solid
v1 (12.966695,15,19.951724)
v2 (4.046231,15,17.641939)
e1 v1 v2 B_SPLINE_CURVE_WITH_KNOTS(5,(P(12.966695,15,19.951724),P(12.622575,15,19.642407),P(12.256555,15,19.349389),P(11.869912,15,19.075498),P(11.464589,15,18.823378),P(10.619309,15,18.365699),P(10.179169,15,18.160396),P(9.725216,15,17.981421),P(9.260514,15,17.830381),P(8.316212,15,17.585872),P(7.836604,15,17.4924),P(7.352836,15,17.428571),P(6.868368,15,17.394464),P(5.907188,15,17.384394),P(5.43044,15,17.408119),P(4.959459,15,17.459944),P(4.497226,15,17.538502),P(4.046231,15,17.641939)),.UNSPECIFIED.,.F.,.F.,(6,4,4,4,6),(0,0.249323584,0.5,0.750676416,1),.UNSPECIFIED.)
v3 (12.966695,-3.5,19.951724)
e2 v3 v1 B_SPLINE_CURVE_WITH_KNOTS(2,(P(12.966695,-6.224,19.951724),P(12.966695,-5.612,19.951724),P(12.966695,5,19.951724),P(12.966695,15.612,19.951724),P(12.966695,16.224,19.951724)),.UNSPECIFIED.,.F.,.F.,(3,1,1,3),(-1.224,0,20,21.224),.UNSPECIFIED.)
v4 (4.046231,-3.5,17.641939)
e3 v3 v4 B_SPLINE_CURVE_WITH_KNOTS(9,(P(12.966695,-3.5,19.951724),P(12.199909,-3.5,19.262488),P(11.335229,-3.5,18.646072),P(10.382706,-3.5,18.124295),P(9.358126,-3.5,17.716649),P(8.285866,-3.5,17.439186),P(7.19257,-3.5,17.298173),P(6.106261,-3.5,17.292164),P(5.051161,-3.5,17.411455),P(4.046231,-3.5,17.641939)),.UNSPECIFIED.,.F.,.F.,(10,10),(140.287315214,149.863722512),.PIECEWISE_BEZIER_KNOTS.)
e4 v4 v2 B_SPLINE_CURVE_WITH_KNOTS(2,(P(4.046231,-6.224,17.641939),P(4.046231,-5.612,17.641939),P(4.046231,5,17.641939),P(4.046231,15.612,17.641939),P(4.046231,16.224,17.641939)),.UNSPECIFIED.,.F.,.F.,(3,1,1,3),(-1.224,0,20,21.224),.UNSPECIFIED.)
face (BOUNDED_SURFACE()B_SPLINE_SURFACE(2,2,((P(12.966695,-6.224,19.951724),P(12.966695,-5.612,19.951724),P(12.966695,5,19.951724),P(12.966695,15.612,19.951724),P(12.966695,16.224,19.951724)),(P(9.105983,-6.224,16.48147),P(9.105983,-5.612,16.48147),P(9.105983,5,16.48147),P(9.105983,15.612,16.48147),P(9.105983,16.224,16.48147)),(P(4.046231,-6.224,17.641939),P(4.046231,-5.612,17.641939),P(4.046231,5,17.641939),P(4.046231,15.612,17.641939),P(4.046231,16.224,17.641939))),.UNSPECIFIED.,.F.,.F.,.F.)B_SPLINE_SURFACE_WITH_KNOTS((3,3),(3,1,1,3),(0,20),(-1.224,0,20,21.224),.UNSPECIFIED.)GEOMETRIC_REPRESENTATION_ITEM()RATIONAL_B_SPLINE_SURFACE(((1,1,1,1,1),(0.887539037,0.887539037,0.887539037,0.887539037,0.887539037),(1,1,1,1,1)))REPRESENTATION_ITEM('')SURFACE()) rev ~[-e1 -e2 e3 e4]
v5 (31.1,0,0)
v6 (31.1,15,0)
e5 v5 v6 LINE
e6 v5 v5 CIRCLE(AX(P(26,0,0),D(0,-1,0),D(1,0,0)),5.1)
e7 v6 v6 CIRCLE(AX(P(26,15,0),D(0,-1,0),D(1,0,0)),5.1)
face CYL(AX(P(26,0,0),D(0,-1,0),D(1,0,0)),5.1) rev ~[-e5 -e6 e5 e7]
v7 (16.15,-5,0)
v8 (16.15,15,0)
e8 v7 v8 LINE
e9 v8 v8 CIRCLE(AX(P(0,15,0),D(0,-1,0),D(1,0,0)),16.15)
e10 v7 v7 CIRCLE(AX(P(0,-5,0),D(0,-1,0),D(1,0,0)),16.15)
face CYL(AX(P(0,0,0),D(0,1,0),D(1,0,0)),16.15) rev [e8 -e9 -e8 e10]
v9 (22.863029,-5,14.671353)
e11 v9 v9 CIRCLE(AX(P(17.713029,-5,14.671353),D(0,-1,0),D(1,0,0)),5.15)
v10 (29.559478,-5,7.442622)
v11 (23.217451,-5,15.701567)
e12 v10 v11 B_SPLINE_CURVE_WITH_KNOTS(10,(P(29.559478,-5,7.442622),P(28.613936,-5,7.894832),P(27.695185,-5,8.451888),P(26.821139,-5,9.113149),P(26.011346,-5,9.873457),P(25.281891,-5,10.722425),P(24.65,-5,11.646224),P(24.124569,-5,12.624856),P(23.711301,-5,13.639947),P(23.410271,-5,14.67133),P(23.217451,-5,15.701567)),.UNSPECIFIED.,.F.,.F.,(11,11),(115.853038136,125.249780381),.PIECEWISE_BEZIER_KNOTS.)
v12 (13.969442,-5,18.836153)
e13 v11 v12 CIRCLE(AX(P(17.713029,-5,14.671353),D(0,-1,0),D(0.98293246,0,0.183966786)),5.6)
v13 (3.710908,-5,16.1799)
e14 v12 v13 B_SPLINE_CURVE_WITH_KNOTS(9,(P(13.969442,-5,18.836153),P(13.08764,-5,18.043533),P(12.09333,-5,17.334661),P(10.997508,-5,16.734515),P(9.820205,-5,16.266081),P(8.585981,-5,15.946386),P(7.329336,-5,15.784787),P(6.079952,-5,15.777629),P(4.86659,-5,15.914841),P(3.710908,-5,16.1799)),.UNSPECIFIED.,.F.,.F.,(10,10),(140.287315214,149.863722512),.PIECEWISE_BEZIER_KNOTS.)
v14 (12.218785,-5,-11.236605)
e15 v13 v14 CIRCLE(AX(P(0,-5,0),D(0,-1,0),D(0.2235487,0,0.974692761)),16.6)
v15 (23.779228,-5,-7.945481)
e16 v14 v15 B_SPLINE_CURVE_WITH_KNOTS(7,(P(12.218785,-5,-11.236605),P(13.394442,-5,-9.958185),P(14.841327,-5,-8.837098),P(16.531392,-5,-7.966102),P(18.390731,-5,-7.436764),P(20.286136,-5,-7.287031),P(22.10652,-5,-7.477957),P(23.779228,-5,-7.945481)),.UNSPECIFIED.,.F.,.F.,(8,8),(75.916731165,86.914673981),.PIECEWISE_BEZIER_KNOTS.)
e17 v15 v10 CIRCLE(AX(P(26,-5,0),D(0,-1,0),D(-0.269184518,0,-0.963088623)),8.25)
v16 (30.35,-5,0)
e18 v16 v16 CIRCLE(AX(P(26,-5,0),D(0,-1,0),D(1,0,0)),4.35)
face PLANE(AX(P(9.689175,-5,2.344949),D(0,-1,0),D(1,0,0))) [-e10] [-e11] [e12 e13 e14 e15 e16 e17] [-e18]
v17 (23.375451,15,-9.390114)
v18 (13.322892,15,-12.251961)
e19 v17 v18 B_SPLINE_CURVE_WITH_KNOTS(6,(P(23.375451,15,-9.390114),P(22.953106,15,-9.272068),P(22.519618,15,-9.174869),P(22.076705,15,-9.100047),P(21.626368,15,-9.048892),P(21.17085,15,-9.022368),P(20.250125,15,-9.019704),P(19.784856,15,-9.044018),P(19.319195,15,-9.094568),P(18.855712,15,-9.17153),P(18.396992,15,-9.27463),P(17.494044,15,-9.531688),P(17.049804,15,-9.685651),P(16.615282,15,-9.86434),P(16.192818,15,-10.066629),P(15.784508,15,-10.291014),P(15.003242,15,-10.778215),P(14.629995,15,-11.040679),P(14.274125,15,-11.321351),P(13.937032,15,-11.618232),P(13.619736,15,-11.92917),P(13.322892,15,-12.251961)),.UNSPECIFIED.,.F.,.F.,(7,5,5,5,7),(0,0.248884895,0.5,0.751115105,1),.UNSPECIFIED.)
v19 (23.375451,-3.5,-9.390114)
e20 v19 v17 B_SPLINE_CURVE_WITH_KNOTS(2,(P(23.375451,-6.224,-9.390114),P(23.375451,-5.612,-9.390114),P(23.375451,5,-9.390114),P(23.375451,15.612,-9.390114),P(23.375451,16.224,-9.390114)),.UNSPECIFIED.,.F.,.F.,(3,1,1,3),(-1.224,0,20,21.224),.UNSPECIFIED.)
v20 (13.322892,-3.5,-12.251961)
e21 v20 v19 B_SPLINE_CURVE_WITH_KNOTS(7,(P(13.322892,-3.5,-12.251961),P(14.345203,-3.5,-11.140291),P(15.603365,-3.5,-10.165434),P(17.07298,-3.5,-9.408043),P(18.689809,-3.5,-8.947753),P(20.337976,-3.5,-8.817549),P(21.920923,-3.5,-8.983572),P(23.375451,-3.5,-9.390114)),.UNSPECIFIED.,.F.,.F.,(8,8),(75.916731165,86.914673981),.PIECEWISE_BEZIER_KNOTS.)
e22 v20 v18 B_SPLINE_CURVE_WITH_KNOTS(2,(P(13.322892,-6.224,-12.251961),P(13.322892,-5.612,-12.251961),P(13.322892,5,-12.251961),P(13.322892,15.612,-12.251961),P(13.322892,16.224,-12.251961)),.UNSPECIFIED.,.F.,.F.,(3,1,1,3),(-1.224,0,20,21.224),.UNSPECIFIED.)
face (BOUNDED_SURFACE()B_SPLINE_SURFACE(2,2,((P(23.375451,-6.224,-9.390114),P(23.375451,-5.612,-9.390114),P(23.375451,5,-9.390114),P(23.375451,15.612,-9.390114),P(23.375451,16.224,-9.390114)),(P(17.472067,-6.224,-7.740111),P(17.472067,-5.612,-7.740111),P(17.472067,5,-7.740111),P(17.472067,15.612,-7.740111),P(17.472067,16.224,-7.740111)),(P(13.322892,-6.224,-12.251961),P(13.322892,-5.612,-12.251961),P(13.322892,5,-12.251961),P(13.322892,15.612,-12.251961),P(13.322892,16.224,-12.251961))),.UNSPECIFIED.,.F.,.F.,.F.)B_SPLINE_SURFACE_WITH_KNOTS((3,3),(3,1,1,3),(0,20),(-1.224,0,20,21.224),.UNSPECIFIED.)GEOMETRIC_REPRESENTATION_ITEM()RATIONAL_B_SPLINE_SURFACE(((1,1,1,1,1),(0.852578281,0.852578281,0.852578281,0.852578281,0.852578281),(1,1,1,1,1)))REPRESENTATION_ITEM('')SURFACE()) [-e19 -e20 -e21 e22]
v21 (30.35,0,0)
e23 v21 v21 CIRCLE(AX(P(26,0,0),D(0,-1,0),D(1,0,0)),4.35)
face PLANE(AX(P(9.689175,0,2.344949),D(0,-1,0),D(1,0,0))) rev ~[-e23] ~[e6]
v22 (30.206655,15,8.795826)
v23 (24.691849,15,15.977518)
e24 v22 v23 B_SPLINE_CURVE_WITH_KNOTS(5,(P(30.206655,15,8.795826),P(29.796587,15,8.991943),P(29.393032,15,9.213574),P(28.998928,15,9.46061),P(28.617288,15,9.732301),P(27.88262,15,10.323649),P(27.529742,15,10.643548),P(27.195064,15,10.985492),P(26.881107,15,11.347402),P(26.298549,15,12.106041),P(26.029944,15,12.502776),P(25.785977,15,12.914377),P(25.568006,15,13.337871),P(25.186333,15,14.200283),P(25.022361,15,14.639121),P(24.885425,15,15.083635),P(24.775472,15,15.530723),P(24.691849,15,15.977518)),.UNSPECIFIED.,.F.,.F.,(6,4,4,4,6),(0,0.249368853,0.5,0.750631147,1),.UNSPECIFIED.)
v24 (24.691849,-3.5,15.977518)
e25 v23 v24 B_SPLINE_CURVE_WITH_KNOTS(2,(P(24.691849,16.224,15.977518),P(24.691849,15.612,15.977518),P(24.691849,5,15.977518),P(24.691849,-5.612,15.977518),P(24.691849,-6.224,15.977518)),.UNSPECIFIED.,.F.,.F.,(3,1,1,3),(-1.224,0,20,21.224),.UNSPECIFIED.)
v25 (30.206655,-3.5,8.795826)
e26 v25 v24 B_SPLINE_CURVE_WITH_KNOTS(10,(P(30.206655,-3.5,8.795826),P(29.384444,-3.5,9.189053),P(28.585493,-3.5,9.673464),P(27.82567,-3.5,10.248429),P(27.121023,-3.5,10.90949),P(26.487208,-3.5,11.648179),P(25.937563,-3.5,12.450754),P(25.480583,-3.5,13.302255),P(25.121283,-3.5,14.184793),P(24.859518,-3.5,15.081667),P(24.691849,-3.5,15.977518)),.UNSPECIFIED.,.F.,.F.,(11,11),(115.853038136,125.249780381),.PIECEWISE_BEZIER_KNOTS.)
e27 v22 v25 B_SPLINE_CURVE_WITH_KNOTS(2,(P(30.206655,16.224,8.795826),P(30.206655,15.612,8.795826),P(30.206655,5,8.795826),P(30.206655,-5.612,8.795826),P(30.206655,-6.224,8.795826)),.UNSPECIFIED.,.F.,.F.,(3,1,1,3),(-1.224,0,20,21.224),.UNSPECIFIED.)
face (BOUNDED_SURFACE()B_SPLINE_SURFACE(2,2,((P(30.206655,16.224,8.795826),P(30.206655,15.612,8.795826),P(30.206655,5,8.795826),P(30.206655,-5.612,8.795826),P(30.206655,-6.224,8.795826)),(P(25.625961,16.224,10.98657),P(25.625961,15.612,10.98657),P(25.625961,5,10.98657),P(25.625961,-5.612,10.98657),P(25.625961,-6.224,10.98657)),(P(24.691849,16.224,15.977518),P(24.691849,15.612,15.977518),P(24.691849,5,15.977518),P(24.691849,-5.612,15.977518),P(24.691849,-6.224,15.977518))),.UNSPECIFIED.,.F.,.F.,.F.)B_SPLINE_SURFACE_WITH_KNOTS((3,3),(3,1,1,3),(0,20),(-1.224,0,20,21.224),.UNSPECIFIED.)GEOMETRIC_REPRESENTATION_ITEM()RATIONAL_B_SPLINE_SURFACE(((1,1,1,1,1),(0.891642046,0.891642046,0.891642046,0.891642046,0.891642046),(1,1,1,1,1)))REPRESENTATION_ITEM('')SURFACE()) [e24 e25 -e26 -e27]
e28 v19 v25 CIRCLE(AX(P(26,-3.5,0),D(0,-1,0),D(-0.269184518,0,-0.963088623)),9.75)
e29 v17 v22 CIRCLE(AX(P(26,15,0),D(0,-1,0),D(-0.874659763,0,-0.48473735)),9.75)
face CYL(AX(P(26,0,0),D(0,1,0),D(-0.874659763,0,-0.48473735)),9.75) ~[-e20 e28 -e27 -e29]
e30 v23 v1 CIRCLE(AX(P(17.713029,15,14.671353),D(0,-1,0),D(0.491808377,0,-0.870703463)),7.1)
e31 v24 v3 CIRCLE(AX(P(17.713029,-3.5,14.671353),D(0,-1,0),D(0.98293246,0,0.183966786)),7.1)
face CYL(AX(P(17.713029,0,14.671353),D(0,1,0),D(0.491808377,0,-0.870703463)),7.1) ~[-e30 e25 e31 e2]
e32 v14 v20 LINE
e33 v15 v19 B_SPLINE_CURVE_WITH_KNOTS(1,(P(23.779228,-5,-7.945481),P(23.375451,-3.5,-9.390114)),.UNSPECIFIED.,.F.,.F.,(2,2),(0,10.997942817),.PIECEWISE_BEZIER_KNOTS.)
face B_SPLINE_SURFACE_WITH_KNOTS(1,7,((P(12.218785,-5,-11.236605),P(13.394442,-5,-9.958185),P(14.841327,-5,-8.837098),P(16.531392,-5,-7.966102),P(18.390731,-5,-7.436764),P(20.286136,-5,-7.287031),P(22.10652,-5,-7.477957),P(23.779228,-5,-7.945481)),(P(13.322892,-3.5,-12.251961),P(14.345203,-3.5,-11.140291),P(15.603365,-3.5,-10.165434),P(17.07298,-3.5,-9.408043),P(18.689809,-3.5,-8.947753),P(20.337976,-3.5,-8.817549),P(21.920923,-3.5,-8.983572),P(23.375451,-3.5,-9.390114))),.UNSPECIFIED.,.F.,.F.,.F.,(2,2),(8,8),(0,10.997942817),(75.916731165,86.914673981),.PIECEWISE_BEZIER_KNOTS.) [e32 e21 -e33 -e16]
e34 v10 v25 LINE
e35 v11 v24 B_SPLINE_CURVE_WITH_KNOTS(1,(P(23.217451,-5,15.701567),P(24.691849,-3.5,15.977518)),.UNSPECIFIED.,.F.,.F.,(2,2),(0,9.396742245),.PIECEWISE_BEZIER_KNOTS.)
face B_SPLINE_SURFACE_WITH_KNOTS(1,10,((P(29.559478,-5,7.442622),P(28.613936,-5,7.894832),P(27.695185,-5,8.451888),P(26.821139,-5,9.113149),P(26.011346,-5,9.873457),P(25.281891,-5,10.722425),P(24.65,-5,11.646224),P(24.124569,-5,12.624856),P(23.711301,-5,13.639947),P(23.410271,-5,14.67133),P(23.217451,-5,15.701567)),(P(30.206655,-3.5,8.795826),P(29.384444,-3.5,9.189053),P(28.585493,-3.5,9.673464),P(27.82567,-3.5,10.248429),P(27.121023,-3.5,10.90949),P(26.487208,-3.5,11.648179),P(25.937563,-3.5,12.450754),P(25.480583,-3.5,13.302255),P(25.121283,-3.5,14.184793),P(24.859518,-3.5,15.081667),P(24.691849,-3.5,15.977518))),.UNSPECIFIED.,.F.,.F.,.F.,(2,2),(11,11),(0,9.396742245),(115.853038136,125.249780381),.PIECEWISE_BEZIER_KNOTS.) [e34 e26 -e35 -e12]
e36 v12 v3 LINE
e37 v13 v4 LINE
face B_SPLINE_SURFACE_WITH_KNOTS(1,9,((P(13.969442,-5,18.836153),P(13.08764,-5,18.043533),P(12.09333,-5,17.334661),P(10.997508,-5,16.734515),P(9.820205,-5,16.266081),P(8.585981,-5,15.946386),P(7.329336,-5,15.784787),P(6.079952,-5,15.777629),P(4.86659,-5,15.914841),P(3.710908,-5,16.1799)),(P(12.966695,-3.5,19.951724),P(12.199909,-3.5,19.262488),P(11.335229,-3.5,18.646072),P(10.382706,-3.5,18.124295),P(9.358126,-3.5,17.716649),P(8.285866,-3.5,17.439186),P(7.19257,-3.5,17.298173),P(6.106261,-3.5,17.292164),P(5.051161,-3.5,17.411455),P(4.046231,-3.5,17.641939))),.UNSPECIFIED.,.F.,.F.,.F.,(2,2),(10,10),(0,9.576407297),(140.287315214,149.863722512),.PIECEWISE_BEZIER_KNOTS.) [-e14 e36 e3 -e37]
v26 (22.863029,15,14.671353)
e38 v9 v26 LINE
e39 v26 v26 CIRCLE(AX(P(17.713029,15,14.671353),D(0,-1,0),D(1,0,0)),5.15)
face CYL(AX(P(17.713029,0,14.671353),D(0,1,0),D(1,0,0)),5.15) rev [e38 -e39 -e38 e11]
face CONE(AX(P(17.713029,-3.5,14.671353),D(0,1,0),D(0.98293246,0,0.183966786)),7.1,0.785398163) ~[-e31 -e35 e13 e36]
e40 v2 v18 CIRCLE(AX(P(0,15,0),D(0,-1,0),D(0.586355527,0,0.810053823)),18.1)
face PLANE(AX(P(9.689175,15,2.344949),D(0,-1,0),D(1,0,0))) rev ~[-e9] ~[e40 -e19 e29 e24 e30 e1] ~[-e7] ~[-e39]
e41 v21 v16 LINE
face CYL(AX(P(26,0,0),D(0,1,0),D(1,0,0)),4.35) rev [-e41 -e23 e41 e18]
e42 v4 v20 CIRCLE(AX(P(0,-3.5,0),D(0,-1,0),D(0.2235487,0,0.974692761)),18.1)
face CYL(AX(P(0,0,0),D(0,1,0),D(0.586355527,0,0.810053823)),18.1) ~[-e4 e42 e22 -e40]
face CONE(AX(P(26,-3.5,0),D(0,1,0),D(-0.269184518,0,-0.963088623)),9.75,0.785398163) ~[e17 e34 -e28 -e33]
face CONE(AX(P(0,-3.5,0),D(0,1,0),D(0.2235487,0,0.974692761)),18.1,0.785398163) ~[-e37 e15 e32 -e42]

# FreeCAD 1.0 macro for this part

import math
import FreeCAD as App
import Part
import Sketcher
from FreeCAD import Vector


def edges_at(feature, points):
    """Names of the edges that pass closest to the given points."""
    edges = feature.Shape.Edges
    near = lambda p: min(range(len(edges)), key=lambda i: edges[i].distToShape(Part.Vertex(*p))[0])
    return sorted({f"Edge{near(p) + 1}" for p in points})

doc = App.newDocument("Part")
body = doc.addObject("PartDesign::Body", "Body")

sketch1 = doc.addObject("Sketcher::SketchObject", "Sketch")
body.addObject(sketch1)
sketch1.AttachmentSupport = (doc.XZ_Plane, [""])
sketch1.MapMode = "FlatFace"
sketch1.addGeometry(Part.ArcOfCircle(Part.Circle(Vector(26, 0, 0), Vector(0, 0, 1), 9.75), math.radians(-151.004734), math.radians(119.45951)), False)
sketch1.addGeometry(Part.ArcOfCircle(Part.Circle(Vector(17.713029, 14.671353, 0), Vector(0, 0, 1), 7.1), math.radians(-60.54049), math.radians(180.075688)), False)
sketch1.addGeometry(Part.ArcOfCircle(Part.Circle(Vector(0, 0, 0), Vector(0, 0, 1), 18.1), math.radians(54.10119), math.radians(344.863742)), False)
sketch1.addGeometry(Part.Circle(Vector(0, 0, 0), Vector(0, 0, 1), 16.15), False)
sketch1.addGeometry(Part.Circle(Vector(26, 0, 0), Vector(0, 0, 1), 5.1), False)
sketch1.addGeometry(Part.Circle(Vector(17.713029, 14.671353, 0), Vector(0, 0, 1), 5.15), False)
sketch1.addConstraint(Sketcher.Constraint("Tangent", 0, 2, 1, 1))
sketch1.addConstraint(Sketcher.Constraint("Coincident", 1, 2, 2, 1))
sketch1.addConstraint(Sketcher.Constraint("Coincident", 2, 2, 0, 1))
sketch1.addConstraint(Sketcher.Constraint("Coincident", 2, 3, -1, 1))
sketch1.addConstraint(Sketcher.Constraint("Coincident", 3, 3, -1, 1))
sketch1.addConstraint(Sketcher.Constraint("Coincident", 4, 3, 0, 3))
sketch1.addConstraint(Sketcher.Constraint("Coincident", 5, 3, 1, 3))
sketch1.addConstraint(Sketcher.Constraint("PointOnObject", 0, 3, -1))
sketch1.addConstraint(Sketcher.Constraint("Diameter", 3, 32.3))
sketch1.addConstraint(Sketcher.Constraint("Diameter", 4, 10.2))
sketch1.addConstraint(Sketcher.Constraint("Diameter", 5, 10.3))
sketch1.addConstraint(Sketcher.Constraint("Radius", 1, 7.1))
sketch1.addConstraint(Sketcher.Constraint("Radius", 2, 18.1))
sketch1.addConstraint(Sketcher.Constraint("Radius", 0, 9.75))
sketch1.addConstraint(Sketcher.Constraint("DistanceX", -1, 1, 0, 3, 26.0))
sketch1.addConstraint(Sketcher.Constraint("DistanceX", 2, 2, 0, 2, 3.732801))
pad1 = doc.addObject("PartDesign::Pad", "Pad")
body.addObject(pad1)
pad1.Profile = sketch1
pad1.Length = 15
pad1.Reversed = True

sketch2 = doc.addObject("Sketcher::SketchObject", "Sketch001")
body.addObject(sketch2)
sketch2.AttachmentSupport = (doc.XZ_Plane, [""])
sketch2.MapMode = "FlatFace"
sketch2.addGeometry(Part.ArcOfCircle(Part.Circle(Vector(26, 0, 0), Vector(0, 0, 1), 9.75), math.radians(-151.004734), math.radians(119.45951)), False)
sketch2.addGeometry(Part.ArcOfCircle(Part.Circle(Vector(17.713029, 14.671353, 0), Vector(0, 0, 1), 7.1), math.radians(-60.54049), math.radians(180.075688)), False)
sketch2.addGeometry(Part.ArcOfCircle(Part.Circle(Vector(0, 0, 0), Vector(0, 0, 1), 18.1), math.radians(54.10119), math.radians(344.863742)), False)
sketch2.addGeometry(Part.Circle(Vector(0, 0, 0), Vector(0, 0, 1), 16.15), False)
sketch2.addGeometry(Part.Circle(Vector(26, 0, 0), Vector(0, 0, 1), 4.35), False)
sketch2.addGeometry(Part.Circle(Vector(17.713029, 14.671353, 0), Vector(0, 0, 1), 5.15), False)
sketch2.addConstraint(Sketcher.Constraint("Tangent", 0, 2, 1, 1))
sketch2.addConstraint(Sketcher.Constraint("Coincident", 1, 2, 2, 1))
sketch2.addConstraint(Sketcher.Constraint("Coincident", 2, 2, 0, 1))
sketch2.addConstraint(Sketcher.Constraint("Coincident", 2, 3, -1, 1))
sketch2.addConstraint(Sketcher.Constraint("Coincident", 3, 3, -1, 1))
sketch2.addConstraint(Sketcher.Constraint("Coincident", 4, 3, 0, 3))
sketch2.addConstraint(Sketcher.Constraint("Coincident", 5, 3, 1, 3))
sketch2.addConstraint(Sketcher.Constraint("PointOnObject", 0, 3, -1))
sketch2.addConstraint(Sketcher.Constraint("Diameter", 3, 32.3))
sketch2.addConstraint(Sketcher.Constraint("Diameter", 4, 8.7))
sketch2.addConstraint(Sketcher.Constraint("Diameter", 5, 10.3))
sketch2.addConstraint(Sketcher.Constraint("Radius", 1, 7.1))
sketch2.addConstraint(Sketcher.Constraint("Radius", 2, 18.1))
sketch2.addConstraint(Sketcher.Constraint("Radius", 0, 9.75))
sketch2.addConstraint(Sketcher.Constraint("DistanceX", -1, 1, 0, 3, 26.0))
sketch2.addConstraint(Sketcher.Constraint("DistanceX", 2, 2, 0, 2, 3.732801))
pad2 = doc.addObject("PartDesign::Pad", "Pad001")
body.addObject(pad2)
pad2.Profile = sketch2
pad2.Length = 5
doc.recompute()

fillet = doc.addObject("PartDesign::Fillet", "Fillet")
body.addObject(fillet)
fillet.Base = (pad2, edges_at(pad2, [(10.613, 5, 14.662), (21.205, 5, 8.489), (17.472, 5, -4.726)]))
fillet.Radius = 10
doc.recompute()

chamfer = doc.addObject("PartDesign::Chamfer", "Chamfer")
body.addObject(chamfer)
chamfer.Base = (fillet, edges_at(fillet, [(-17.287, -5, -5.364)]))
chamfer.Size = 1.5

doc.recompute()
